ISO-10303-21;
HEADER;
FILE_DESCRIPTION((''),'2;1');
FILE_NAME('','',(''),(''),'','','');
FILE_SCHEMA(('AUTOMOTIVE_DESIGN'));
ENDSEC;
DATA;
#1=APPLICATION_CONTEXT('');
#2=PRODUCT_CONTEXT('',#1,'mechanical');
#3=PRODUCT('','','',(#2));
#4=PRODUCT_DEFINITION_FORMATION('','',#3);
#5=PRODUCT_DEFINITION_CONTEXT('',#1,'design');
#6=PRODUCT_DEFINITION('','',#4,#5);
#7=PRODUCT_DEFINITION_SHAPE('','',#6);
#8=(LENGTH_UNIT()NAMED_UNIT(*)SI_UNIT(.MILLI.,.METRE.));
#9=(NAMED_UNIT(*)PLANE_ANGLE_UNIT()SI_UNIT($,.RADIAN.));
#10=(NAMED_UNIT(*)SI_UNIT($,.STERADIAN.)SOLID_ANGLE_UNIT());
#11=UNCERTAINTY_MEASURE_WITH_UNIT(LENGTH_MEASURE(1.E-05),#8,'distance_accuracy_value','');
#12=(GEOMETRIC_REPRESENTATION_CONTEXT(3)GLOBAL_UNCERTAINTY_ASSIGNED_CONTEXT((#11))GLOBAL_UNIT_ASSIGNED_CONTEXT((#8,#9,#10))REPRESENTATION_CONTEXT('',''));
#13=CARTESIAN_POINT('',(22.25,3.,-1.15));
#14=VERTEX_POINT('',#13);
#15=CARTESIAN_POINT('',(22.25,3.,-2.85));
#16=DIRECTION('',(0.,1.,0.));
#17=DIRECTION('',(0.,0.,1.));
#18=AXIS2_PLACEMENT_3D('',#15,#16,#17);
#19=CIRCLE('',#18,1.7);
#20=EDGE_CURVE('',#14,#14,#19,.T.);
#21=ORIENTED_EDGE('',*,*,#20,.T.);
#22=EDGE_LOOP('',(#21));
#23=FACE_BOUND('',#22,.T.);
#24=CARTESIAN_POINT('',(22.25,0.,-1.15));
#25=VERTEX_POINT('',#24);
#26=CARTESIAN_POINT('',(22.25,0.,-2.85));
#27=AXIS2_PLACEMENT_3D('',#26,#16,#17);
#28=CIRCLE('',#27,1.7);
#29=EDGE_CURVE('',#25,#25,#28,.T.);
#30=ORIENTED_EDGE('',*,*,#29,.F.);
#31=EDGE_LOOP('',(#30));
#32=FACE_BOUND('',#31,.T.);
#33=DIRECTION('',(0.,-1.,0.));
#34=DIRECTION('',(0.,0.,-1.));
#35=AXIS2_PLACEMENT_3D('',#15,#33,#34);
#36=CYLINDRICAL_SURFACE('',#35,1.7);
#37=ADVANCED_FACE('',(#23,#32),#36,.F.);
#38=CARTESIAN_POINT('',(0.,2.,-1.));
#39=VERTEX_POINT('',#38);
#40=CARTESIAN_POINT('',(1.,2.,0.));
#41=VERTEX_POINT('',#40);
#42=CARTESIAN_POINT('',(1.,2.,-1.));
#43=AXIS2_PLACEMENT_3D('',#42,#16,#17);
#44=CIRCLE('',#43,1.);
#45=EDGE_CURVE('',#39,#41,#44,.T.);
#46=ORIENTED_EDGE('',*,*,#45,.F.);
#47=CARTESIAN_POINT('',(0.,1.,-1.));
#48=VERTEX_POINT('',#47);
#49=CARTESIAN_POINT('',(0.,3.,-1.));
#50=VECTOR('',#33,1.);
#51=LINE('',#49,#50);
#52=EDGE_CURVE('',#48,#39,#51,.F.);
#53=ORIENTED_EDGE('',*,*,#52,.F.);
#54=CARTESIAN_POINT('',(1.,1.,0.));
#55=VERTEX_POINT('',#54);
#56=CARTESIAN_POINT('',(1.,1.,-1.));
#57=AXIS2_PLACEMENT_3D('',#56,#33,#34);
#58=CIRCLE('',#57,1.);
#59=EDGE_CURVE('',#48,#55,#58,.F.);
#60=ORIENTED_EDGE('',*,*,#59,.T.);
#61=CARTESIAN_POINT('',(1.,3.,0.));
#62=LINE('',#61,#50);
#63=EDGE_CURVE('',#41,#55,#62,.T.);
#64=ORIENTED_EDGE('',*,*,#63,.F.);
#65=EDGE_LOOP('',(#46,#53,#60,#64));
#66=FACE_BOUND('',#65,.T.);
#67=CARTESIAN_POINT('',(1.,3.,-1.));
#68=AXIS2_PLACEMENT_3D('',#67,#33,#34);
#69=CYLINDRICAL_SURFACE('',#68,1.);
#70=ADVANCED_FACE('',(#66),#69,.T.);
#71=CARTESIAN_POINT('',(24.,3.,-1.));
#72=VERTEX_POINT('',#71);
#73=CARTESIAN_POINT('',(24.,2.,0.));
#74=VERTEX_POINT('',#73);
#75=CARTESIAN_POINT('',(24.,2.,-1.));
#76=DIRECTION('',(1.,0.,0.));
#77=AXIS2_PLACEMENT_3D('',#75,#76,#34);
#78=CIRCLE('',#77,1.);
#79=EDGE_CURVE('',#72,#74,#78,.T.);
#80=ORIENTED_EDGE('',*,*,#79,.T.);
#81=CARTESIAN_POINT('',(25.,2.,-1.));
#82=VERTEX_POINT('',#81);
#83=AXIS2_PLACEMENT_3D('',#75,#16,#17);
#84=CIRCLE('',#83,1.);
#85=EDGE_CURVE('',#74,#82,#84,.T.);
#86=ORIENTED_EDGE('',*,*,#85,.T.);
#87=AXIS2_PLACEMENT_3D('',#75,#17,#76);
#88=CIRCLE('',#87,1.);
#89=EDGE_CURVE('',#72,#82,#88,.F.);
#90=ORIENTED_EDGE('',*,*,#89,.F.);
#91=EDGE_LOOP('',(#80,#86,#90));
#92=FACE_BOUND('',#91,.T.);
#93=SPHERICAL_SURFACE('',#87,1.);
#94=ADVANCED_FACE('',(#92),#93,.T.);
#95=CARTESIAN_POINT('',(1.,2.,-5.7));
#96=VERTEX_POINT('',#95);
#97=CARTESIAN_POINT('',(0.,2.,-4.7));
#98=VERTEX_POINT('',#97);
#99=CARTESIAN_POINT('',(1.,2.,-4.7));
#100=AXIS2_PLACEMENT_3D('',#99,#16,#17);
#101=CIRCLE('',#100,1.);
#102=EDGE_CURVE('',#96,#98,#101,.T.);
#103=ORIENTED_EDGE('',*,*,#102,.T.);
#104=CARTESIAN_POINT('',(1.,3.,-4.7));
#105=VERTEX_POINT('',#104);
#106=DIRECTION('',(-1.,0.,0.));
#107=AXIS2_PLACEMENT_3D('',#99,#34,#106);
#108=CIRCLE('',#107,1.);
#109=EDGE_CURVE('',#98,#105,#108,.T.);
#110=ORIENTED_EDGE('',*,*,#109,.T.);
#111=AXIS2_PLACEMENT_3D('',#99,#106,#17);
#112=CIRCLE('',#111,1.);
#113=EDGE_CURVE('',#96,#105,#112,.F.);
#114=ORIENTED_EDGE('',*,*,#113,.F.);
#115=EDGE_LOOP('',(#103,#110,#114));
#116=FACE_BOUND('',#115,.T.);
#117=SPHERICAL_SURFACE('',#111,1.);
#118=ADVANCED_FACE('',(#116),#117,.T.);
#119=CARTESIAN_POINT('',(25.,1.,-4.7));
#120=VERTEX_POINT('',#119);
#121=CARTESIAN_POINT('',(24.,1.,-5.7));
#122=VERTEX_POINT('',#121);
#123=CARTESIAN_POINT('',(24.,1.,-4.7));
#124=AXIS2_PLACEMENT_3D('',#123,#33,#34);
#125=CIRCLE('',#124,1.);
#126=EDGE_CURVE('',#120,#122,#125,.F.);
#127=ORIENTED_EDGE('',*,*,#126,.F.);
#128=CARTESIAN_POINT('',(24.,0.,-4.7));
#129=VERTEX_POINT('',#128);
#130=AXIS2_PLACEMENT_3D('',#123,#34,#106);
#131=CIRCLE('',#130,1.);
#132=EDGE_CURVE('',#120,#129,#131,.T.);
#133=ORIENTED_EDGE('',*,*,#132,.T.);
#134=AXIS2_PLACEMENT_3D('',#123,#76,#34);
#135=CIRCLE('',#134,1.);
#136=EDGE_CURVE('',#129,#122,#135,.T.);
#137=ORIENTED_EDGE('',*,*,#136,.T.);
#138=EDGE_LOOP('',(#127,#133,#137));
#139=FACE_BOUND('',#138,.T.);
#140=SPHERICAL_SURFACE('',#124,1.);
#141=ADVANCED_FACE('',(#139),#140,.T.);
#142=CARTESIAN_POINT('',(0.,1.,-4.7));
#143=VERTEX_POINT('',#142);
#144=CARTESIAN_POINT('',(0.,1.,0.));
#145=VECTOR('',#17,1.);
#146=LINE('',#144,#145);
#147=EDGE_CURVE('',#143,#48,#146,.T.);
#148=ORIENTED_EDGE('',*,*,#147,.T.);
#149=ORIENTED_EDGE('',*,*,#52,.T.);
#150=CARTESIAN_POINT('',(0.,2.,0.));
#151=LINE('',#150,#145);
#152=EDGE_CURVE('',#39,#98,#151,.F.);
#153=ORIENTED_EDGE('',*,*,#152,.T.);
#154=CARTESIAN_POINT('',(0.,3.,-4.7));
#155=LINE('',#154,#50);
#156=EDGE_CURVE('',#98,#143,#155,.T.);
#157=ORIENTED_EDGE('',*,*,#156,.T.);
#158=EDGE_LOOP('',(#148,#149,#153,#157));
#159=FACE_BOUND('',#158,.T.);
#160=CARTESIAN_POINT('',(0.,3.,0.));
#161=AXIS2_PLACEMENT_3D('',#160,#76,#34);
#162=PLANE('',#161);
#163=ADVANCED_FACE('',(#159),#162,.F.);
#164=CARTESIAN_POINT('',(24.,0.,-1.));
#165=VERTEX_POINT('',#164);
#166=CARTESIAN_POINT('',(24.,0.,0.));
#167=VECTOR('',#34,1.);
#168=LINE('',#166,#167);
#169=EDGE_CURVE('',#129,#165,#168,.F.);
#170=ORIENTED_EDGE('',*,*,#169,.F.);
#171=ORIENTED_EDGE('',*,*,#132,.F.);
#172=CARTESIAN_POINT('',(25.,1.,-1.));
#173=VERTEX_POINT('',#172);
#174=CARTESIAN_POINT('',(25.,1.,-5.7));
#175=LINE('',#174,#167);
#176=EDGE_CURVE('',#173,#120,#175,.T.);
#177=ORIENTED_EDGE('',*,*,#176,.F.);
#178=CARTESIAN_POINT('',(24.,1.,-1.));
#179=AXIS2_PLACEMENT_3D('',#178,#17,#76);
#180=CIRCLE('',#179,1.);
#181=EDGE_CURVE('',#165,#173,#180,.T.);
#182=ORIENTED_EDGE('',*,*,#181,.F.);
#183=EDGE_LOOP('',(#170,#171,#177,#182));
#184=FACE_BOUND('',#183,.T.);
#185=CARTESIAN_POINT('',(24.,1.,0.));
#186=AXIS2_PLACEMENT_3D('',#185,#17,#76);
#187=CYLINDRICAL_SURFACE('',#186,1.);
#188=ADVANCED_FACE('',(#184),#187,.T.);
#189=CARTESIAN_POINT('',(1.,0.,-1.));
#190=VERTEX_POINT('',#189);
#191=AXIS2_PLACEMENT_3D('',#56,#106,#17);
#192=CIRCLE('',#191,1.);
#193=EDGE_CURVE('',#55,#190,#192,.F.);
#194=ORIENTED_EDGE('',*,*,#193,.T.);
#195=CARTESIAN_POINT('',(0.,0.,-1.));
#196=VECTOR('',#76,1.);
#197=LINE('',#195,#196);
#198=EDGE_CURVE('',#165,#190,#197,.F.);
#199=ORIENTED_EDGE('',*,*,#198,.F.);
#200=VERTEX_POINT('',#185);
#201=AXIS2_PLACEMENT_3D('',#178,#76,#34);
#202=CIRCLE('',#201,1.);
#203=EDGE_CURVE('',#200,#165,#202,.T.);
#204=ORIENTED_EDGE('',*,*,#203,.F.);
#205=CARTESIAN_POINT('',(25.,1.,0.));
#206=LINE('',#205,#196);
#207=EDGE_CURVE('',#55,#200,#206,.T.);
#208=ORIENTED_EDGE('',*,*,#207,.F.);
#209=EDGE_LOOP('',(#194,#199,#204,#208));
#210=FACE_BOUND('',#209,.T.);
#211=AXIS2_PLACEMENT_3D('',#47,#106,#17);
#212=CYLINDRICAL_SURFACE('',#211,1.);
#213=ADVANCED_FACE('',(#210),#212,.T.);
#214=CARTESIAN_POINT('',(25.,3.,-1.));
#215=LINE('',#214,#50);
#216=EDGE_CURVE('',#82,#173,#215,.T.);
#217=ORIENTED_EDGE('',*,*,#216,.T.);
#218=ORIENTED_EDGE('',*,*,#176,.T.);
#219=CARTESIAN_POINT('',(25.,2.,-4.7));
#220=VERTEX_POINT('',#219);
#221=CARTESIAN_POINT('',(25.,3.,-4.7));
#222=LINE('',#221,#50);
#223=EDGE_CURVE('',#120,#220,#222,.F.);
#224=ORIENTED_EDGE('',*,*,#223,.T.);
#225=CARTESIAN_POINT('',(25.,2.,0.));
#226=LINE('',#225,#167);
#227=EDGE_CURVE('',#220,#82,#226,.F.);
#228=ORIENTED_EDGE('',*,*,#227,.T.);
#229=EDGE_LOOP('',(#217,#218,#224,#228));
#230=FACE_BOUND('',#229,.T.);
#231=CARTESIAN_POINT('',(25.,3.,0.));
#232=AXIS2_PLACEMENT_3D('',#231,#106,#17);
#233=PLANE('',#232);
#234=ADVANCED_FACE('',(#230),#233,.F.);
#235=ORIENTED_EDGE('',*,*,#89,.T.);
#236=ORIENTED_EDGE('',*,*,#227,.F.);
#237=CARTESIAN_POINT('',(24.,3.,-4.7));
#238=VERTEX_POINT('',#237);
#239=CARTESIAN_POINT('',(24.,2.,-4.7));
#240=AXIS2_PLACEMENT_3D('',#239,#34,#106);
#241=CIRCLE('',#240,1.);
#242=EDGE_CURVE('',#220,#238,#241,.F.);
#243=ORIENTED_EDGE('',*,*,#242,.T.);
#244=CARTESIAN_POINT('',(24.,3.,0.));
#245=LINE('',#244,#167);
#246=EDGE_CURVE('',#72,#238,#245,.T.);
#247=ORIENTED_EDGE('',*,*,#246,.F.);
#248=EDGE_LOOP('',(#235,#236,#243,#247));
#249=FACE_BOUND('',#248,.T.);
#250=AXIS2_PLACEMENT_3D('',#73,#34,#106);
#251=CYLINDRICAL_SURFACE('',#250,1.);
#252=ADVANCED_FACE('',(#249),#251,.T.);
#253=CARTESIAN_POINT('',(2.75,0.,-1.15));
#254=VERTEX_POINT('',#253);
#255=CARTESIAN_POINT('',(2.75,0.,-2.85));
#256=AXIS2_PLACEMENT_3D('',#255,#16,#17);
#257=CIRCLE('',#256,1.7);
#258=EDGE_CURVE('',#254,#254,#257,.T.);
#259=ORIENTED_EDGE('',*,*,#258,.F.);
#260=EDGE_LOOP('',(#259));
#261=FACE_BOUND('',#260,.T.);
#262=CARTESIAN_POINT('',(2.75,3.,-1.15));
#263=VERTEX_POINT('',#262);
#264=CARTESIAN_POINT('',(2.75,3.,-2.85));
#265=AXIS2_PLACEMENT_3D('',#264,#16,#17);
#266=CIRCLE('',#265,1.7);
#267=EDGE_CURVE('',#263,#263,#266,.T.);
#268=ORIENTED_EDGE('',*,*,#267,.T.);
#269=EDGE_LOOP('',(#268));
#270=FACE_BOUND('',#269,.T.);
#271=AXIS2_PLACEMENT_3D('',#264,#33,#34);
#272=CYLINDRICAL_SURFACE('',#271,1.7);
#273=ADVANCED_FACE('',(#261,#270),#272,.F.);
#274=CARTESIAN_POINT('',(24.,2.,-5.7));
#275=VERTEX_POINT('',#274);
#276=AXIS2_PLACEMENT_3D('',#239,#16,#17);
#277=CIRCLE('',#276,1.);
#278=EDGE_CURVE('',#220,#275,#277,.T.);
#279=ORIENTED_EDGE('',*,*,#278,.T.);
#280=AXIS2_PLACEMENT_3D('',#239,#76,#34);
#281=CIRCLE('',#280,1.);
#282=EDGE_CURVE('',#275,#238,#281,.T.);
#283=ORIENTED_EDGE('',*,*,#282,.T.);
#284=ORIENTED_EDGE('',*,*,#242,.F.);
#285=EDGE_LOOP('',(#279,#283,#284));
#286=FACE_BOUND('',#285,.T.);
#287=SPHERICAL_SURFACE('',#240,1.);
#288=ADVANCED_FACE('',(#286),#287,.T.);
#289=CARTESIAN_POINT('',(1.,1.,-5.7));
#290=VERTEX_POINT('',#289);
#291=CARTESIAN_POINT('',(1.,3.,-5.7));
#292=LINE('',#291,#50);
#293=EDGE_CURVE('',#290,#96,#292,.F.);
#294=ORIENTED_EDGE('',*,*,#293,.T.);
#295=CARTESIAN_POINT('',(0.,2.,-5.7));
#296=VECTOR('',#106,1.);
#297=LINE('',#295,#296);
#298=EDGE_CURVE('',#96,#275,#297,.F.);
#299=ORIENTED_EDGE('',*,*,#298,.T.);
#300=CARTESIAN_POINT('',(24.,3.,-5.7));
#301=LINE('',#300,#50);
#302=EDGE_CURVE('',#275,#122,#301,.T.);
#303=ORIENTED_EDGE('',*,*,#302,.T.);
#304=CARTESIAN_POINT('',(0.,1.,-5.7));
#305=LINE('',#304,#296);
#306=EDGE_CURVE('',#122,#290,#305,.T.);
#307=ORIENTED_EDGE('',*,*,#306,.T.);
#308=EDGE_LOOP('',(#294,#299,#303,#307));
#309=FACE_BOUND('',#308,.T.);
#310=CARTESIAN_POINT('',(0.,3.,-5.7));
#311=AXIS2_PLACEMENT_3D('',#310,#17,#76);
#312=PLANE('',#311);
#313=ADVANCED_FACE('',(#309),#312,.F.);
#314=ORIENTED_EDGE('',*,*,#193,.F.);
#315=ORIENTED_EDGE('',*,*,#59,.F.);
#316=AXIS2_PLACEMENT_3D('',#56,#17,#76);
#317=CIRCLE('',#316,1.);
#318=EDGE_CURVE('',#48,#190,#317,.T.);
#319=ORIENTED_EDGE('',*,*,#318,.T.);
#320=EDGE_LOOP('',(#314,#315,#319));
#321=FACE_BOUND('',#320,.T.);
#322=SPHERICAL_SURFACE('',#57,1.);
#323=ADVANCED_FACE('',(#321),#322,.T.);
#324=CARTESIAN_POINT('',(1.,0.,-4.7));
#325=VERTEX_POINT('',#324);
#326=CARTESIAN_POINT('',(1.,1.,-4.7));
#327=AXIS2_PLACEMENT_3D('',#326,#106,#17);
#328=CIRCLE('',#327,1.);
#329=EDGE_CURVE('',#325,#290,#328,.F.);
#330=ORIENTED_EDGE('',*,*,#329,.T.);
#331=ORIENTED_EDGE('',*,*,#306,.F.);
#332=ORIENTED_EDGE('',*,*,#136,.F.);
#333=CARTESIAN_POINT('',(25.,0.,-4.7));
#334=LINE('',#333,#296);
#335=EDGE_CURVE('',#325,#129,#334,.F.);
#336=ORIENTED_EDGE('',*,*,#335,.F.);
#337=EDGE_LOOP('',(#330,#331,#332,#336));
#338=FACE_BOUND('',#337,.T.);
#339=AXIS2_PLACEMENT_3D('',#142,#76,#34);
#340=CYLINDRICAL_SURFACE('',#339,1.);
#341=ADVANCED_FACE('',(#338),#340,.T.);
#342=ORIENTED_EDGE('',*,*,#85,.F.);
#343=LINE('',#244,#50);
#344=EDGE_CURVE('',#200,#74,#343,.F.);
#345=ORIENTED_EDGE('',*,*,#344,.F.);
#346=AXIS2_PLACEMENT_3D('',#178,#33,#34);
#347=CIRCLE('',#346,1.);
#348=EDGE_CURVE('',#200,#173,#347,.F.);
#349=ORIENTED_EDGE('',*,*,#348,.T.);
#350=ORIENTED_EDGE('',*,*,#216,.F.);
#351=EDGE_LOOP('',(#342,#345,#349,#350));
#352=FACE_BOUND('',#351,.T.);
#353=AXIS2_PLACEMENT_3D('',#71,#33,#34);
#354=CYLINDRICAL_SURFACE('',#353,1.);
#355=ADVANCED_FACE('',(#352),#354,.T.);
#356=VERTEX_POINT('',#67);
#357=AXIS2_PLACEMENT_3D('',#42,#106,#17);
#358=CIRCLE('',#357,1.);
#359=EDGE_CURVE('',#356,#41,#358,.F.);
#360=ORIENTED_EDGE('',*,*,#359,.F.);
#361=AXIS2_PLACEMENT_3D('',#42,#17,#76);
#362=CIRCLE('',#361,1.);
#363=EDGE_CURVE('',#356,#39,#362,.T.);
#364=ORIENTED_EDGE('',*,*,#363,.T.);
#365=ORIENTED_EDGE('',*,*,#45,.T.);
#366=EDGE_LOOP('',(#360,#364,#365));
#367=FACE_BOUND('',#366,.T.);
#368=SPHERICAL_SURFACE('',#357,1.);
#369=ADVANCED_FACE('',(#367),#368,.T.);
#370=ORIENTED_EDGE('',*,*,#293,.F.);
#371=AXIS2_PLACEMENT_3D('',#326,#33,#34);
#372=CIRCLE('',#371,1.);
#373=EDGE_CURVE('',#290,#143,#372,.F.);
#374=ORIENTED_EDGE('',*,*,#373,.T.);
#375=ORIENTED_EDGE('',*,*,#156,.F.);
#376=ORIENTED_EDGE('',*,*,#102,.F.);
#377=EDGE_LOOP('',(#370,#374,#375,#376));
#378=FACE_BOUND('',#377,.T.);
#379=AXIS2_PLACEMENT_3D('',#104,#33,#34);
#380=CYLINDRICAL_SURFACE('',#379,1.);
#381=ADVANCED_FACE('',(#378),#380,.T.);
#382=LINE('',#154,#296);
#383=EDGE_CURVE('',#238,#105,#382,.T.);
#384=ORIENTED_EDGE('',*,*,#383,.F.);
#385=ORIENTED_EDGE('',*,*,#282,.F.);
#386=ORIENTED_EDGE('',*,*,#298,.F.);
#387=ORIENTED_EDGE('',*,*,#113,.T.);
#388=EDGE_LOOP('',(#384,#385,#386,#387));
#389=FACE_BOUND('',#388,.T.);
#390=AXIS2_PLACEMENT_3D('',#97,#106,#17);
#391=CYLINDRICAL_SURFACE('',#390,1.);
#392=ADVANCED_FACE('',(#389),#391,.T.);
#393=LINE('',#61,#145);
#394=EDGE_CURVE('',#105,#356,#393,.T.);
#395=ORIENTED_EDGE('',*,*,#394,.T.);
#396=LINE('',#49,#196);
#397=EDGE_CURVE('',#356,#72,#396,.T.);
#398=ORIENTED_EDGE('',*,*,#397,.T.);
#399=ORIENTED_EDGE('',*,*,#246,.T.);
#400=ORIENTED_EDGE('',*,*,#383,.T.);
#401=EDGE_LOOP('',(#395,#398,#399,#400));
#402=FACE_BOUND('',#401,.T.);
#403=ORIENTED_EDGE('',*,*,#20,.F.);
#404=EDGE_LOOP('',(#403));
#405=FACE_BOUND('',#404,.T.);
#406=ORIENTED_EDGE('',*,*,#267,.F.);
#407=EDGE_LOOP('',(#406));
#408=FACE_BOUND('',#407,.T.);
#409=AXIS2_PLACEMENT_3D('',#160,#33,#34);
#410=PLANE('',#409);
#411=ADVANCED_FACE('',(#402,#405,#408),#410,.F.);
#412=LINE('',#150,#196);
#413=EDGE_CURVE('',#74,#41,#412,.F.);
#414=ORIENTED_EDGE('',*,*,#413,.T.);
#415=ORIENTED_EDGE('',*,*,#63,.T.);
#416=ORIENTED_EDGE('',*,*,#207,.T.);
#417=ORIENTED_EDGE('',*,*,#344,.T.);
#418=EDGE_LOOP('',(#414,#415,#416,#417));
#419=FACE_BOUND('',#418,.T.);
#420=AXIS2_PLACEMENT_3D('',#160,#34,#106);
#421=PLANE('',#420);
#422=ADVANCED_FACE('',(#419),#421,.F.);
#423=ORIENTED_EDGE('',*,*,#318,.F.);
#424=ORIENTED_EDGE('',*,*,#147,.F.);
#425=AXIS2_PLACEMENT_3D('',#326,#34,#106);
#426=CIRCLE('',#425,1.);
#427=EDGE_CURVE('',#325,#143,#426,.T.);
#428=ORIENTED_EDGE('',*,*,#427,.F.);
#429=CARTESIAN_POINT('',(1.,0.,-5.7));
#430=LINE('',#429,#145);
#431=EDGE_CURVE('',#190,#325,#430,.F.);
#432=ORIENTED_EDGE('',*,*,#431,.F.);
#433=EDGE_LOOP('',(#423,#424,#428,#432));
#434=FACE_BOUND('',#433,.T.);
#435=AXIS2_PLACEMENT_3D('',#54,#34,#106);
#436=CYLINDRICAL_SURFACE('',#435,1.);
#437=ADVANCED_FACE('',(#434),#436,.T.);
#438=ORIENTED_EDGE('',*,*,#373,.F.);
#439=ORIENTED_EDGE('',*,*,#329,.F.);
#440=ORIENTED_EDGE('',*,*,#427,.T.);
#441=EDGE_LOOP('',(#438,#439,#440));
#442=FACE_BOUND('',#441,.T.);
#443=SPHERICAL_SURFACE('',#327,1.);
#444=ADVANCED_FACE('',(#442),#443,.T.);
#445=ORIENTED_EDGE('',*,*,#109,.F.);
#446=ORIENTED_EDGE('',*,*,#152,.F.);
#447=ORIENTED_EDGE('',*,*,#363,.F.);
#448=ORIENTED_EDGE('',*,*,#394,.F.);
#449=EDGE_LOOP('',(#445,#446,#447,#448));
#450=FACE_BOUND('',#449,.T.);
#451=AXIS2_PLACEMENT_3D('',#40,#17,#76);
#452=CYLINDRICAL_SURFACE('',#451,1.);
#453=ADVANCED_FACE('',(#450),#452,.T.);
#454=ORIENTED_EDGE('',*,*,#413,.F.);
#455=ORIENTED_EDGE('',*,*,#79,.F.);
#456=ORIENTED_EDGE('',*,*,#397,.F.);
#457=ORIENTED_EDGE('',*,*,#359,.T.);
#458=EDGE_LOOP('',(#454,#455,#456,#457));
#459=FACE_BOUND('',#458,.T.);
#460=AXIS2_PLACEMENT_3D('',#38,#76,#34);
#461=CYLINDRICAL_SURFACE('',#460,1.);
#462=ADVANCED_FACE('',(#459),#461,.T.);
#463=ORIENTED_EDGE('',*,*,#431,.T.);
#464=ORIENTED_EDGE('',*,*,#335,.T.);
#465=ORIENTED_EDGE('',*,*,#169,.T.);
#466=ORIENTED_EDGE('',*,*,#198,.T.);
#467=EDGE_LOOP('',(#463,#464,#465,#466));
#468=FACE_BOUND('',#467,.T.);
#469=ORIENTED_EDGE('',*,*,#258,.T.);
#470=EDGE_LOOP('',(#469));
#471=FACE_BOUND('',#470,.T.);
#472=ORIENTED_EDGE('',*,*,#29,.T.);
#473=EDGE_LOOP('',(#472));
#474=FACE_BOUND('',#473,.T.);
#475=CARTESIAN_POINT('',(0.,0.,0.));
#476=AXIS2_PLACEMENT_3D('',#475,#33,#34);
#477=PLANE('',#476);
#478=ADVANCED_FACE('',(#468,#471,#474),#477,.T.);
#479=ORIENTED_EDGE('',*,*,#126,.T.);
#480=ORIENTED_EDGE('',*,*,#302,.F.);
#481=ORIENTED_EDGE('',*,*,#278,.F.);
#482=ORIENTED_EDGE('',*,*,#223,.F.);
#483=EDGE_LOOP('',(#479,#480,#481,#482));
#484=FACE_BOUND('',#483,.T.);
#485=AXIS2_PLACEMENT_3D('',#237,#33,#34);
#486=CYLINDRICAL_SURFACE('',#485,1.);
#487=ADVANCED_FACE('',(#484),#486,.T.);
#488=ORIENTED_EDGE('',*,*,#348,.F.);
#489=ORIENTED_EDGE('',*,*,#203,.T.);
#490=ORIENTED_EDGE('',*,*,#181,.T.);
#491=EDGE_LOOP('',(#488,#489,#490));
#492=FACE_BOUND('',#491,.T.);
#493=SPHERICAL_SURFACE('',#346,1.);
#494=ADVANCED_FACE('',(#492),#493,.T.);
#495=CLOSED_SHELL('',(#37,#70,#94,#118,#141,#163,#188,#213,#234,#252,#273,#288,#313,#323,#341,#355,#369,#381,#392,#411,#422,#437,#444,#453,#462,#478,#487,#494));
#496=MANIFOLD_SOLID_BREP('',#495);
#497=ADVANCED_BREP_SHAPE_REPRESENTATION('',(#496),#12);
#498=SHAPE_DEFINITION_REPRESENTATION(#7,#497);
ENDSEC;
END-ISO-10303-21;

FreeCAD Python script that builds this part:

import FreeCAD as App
import Part
import Sketcher
from FreeCAD import Vector


def edges_at(feature, points):
    """Names of the edges that pass closest to the given points."""
    edges = feature.Shape.Edges
    near = lambda p: min(range(len(edges)), key=lambda i: edges[i].distToShape(Part.Vertex(*p))[0])
    return sorted({f"Edge{near(p) + 1}" for p in points})

doc = App.newDocument("Part")
params = doc.addObject("Spreadsheet::Sheet", "Params")
for row, (alias, value) in enumerate([
    ("sketch1_diameter", "3.4 mm"),
    ("sketch1_width", "25 mm"),
    ("sketch1_height", "5.7 mm"),
    ("pad1_length", "3 mm"),
    ("fillet_radius", "1 mm"),
], start=1):
    params.set(f"A{row}", alias)
    params.set(f"B{row}", "=" + value)
    params.setAlias(f"B{row}", alias)

body = doc.addObject("PartDesign::Body", "Body")

# Sketch on XZ plane
sketch1 = body.newObject("Sketcher::SketchObject", "Sketch")
sketch1.AttachmentSupport = (doc.getObject("XZ_Plane"), [""])
sketch1.MapMode = "FlatFace"
sketch1.addGeometry([
    Part.LineSegment(Vector(0, -5.7, 0), Vector(0, 0, 0)),  # 0
    Part.LineSegment(Vector(0, 0, 0), Vector(25, 0, 0)),  # 1
    Part.LineSegment(Vector(25, 0, 0), Vector(25, -5.7, 0)),  # 2
    Part.LineSegment(Vector(25, -5.7, 0), Vector(0, -5.7, 0)),  # 3
    Part.Circle(Vector(2.8, -2.9, 0), Vector(0, 0, 1), 1.7),  # 4
    Part.Circle(Vector(22.2, -2.9, 0), Vector(0, 0, 1), 1.7),  # 5
], False)
sketch1.addConstraint([
    Sketcher.Constraint("Coincident", 0, 2, 1, 1),
    Sketcher.Constraint("Coincident", 1, 2, 2, 1),
    Sketcher.Constraint("Coincident", 2, 2, 3, 1),
    Sketcher.Constraint("Coincident", 3, 2, 0, 1),
    Sketcher.Constraint("Vertical", 0),
    Sketcher.Constraint("Horizontal", 1),
    Sketcher.Constraint("Vertical", 2),
    Sketcher.Constraint("Horizontal", 3),
    Sketcher.Constraint("Coincident", 0, 2, -1, 1),
    Sketcher.Constraint("Equal", 4, 5),
    Sketcher.Constraint("Horizontal", 4, 3, 5, 3),
    Sketcher.Constraint("Diameter", 4, 3.4),
    Sketcher.Constraint("DistanceX", 1, 1, 1, 2, 25.0),
    Sketcher.Constraint("DistanceY", 0, 1, 0, 2, 5.7),
    Sketcher.Constraint("DistanceX", 4, 3, 5, 3, 19.5),
    Sketcher.Constraint("DistanceX", -1, 1, 4, 3, 2.75),
    Sketcher.Constraint("DistanceY", 4, 3, -1, 1, 2.85),
])
sketch1.setExpression("Constraints[11]", "Params.sketch1_diameter")
sketch1.setExpression("Constraints[12]", "Params.sketch1_width")
sketch1.setExpression("Constraints[13]", "Params.sketch1_height")
pad1 = body.newObject("PartDesign::Pad", "Pad")
pad1.Profile = sketch1
pad1.setExpression("Length", "Params.pad1_length")
pad1.Reversed = True
doc.recompute()

fillet = body.newObject("PartDesign::Fillet", "Fillet")
fillet.Base = (pad1, edges_at(pad1, [
    (25, 3, -2.85),
    (12.5, 3, -5.7),
    (0, 3, -2.85),
    (12.5, 0, -5.7),
    (25, 0, -2.85),
    (12.5, 0, 0),
    (0, 0, -2.85),
    (0, 1.5, -5.7),
    (25, 1.5, -5.7),
    (25, 1.5, 0),
    (0, 1.5, 0),
    (12.5, 3, 0),
]))
fillet.setExpression("Radius", "Params.fillet_radius")

doc.recompute()
